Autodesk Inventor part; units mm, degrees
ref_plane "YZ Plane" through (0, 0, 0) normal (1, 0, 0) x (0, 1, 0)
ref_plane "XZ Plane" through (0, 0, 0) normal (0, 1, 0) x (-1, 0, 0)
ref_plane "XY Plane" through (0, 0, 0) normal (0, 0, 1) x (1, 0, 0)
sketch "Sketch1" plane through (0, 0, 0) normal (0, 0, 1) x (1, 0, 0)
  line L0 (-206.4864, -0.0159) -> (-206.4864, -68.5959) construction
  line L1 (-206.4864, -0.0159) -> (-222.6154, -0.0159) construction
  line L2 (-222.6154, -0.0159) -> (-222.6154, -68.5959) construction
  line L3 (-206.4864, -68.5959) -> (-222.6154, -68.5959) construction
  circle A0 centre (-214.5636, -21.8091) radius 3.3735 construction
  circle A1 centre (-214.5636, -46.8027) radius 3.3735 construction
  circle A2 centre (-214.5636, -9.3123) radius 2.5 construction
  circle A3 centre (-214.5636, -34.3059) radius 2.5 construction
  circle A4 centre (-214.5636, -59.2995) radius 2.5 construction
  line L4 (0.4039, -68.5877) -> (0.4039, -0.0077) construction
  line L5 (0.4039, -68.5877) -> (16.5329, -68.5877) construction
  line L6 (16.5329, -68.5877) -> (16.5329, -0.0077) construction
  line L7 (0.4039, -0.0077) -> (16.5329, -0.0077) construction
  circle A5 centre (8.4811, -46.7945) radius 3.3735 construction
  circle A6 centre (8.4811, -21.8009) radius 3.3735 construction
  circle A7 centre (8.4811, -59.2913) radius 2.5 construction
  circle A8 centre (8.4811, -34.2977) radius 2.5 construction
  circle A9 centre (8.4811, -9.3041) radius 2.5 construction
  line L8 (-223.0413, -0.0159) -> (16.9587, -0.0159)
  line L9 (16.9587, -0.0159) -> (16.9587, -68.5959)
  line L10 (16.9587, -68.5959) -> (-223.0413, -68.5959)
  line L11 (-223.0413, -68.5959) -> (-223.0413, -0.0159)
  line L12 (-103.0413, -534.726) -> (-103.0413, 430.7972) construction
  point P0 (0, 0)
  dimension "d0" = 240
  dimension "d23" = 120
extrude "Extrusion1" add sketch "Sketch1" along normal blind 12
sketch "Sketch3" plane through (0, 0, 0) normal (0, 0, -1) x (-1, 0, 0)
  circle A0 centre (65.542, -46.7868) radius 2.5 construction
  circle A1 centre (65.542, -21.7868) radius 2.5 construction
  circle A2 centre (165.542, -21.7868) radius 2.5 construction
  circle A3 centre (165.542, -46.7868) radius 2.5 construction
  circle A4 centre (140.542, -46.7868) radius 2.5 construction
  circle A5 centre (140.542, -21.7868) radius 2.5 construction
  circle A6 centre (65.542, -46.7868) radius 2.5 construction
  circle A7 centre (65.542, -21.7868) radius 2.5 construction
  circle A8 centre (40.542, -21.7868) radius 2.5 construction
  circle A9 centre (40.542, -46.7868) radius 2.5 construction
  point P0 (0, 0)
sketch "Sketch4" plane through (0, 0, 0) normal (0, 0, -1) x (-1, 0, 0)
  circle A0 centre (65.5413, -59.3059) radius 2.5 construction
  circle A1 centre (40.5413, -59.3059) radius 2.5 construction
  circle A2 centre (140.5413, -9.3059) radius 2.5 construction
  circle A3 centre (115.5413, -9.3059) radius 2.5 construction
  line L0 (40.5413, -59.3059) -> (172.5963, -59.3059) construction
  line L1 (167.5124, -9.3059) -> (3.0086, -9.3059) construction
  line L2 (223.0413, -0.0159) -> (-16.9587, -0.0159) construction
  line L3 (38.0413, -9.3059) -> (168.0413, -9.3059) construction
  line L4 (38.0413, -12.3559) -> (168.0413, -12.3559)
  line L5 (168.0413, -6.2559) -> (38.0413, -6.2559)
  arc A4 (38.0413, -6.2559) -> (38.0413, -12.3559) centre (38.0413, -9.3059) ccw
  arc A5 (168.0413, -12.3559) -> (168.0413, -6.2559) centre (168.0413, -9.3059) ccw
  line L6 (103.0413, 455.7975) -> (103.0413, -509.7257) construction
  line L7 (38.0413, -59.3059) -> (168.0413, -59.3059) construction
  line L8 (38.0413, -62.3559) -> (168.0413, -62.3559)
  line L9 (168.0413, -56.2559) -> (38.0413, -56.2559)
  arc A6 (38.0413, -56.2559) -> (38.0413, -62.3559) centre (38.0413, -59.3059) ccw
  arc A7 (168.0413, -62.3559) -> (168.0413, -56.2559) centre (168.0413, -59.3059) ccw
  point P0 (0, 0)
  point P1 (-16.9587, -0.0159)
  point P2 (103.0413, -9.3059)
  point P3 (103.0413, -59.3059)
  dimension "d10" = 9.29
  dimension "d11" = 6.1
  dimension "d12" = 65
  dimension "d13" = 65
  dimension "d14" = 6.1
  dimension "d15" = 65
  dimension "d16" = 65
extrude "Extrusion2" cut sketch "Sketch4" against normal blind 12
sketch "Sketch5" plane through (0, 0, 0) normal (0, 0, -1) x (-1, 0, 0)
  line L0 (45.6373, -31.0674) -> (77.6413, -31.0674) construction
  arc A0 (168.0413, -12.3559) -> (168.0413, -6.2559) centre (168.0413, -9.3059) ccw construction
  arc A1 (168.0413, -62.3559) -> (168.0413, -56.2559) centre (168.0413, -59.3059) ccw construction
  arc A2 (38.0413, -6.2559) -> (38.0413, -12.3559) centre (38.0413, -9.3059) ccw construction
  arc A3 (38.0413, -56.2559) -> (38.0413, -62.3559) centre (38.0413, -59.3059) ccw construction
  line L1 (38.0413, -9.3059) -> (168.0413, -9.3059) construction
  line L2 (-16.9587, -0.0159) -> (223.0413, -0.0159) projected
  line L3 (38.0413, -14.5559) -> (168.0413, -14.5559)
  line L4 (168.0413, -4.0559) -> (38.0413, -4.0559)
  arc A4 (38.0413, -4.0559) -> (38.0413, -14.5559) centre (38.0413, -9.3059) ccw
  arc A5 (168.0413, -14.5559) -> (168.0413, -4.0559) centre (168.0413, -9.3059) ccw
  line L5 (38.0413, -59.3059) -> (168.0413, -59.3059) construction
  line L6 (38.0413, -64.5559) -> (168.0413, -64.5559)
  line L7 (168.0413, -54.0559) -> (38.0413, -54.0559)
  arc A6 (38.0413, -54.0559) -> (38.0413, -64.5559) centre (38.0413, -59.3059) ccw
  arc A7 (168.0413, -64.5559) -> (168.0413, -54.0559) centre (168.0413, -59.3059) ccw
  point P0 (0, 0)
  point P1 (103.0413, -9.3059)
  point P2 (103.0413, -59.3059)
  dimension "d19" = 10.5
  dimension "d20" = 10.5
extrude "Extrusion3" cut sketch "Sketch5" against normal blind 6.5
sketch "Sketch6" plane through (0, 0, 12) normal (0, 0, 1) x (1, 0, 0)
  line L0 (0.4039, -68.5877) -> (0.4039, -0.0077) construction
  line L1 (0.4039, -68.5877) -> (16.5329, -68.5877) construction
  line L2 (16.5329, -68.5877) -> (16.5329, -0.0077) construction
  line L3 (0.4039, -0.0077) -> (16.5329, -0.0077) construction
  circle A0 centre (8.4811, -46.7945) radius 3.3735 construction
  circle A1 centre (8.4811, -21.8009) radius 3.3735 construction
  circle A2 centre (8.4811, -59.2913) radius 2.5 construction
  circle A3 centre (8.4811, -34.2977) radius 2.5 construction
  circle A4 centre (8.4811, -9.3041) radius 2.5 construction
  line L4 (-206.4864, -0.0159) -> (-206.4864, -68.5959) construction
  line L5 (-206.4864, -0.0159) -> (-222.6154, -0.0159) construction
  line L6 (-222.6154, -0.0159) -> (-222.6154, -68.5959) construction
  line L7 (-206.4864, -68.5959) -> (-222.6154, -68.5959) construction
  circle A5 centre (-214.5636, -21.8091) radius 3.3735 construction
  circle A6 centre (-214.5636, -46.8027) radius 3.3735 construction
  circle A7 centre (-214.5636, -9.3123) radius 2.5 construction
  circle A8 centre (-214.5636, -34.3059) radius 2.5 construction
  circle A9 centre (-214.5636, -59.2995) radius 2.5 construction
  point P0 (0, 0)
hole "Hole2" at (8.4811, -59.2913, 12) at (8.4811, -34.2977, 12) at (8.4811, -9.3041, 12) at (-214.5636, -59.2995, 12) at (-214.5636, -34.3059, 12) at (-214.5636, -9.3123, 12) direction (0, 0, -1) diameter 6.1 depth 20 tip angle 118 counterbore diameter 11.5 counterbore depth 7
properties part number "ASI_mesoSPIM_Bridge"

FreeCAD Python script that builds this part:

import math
import FreeCAD as App
import Part
import Sketcher
from FreeCAD import Vector
Q = App.Units.Quantity

doc = App.newDocument("Part")
body = doc.addObject("PartDesign::Body", "Body")

# Sketch on XY plane
sketch1 = body.newObject("Sketcher::SketchObject", "Sketch")
sketch1.AttachmentSupport = (doc.getObject("XY_Plane"), [""])
sketch1.MapMode = "FlatFace"
sketch1.addGeometry([
    Part.LineSegment(Vector(17, 0, 0), Vector(-223, 0, 0)),
    Part.LineSegment(Vector(-223, 0, 0), Vector(-223, -69, 0)),
    Part.LineSegment(Vector(-223, -69, 0), Vector(17, -69, 0)),
    Part.LineSegment(Vector(17, -69, 0), Vector(17, 0, 0)),
], False)
sketch1.addConstraint([
    Sketcher.Constraint("Coincident", 0, 2, 1, 1),
    Sketcher.Constraint("Coincident", 1, 2, 2, 1),
    Sketcher.Constraint("Coincident", 2, 2, 3, 1),
    Sketcher.Constraint("Coincident", 3, 2, 0, 1),
    Sketcher.Constraint("Horizontal", 0),
    Sketcher.Constraint("Vertical", 1),
    Sketcher.Constraint("Horizontal", 2),
    Sketcher.Constraint("Vertical", 3),
    Sketcher.Constraint("DistanceX", 0, 2, 0, 1, Q("240 mm")),
    Sketcher.Constraint("DistanceY", 1, 2, 1, 1, Q("68.58 mm")),
    Sketcher.Constraint("DistanceY", 0, 2, -1, 1, Q("0.016 mm")),
    Sketcher.Constraint("DistanceX", 0, 2, -1, 1, Q("223.0413 mm")),
])
pad1 = body.newObject("PartDesign::Pad", "Pad")
pad1.Profile = sketch1
pad1.Length = 12

# Sketch on XY plane
sketch2 = body.newObject("Sketcher::SketchObject", "Sketch001")
sketch2.AttachmentSupport = (doc.getObject("XY_Plane"), [""])
sketch2.MapMode = "FlatFace"
sketch2.addGeometry([
    Part.ArcOfCircle(Part.Circle(Vector(-38, -9.3, 0), Vector(0, 0, 1), 3), math.radians(-90), math.radians(90)),  # 0
    Part.LineSegment(Vector(-38, -12.4, 0), Vector(-168, -12.4, 0)),  # 1
    Part.ArcOfCircle(Part.Circle(Vector(-168, -9.3, 0), Vector(0, 0, 1), 3.1), math.radians(90), math.radians(270)),  # 2
    Part.LineSegment(Vector(-168, -6.3, 0), Vector(-38, -6.3, 0)),  # 3
    Part.ArcOfCircle(Part.Circle(Vector(-38, -59.3, 0), Vector(0, 0, 1), 3.1), math.radians(-90), math.radians(90)),  # 4
    Part.LineSegment(Vector(-38, -62.4, 0), Vector(-168, -62.4, 0)),  # 5
    Part.ArcOfCircle(Part.Circle(Vector(-168, -59.3, 0), Vector(0, 0, 1), 3), math.radians(90), math.radians(270)),  # 6
    Part.LineSegment(Vector(-168, -56.3, 0), Vector(-38, -56.3, 0)),  # 7
], False)
sketch2.addConstraint([
    Sketcher.Constraint("Tangent", 0, 1, 1, 1),
    Sketcher.Constraint("Tangent", 1, 2, 2, 2),
    Sketcher.Constraint("Tangent", 2, 1, 3, 1),
    Sketcher.Constraint("Tangent", 3, 2, 0, 2),
    Sketcher.Constraint("Tangent", 4, 1, 5, 1),
    Sketcher.Constraint("Tangent", 5, 2, 6, 2),
    Sketcher.Constraint("Tangent", 6, 1, 7, 1),
    Sketcher.Constraint("Tangent", 7, 2, 4, 2),
    Sketcher.Constraint("Horizontal", 1),
    Sketcher.Constraint("Horizontal", 3),
    Sketcher.Constraint("Horizontal", 5),
    Sketcher.Constraint("Horizontal", 7),
    Sketcher.Constraint("Equal", 2, 4),
    Sketcher.Constraint("Vertical", 0, 3, 4, 3),
    Sketcher.Constraint("Vertical", 2, 3, 6, 3),
    Sketcher.Constraint("Radius", 0, Q("3.05 mm")),
    Sketcher.Constraint("DistanceX", 1, 2, 1, 1, Q("130 mm")),
    Sketcher.Constraint("DistanceY", 4, 3, 0, 3, Q("50 mm")),
    Sketcher.Constraint("DistanceY", 0, 3, -1, 1, Q("9.306 mm")),
    Sketcher.Constraint("DistanceX", 0, 3, -1, 1, Q("38.0413 mm")),
])
pocket1 = body.newObject("PartDesign::Pocket", "Pocket")
pocket1.Profile = sketch2
pocket1.Length = 12
pocket1.Reversed = True

# Sketch on XY plane
sketch3 = body.newObject("Sketcher::SketchObject", "Sketch002")
sketch3.AttachmentSupport = (doc.getObject("XY_Plane"), [""])
sketch3.MapMode = "FlatFace"
sketch3.addGeometry([
    Part.ArcOfCircle(Part.Circle(Vector(-38, -9, 0), Vector(0, 0, 1), 5), math.radians(-90), math.radians(90)),  # 0
    Part.LineSegment(Vector(-38, -15, 0), Vector(-168, -15, 0)),  # 1
    Part.ArcOfCircle(Part.Circle(Vector(-168, -9, 0), Vector(0, 0, 1), 5), math.radians(90), math.radians(270)),  # 2
    Part.LineSegment(Vector(-168, -4, 0), Vector(-38, -4, 0)),  # 3
    Part.ArcOfCircle(Part.Circle(Vector(-38, -59, 0), Vector(0, 0, 1), 5), math.radians(-90), math.radians(90)),  # 4
    Part.LineSegment(Vector(-38, -65, 0), Vector(-168, -65, 0)),  # 5
    Part.ArcOfCircle(Part.Circle(Vector(-168, -59, 0), Vector(0, 0, 1), 5), math.radians(90), math.radians(270)),  # 6
    Part.LineSegment(Vector(-168, -54, 0), Vector(-38, -54, 0)),  # 7
], False)
sketch3.addConstraint([
    Sketcher.Constraint("Tangent", 0, 1, 1, 1),
    Sketcher.Constraint("Tangent", 1, 2, 2, 2),
    Sketcher.Constraint("Tangent", 2, 1, 3, 1),
    Sketcher.Constraint("Tangent", 3, 2, 0, 2),
    Sketcher.Constraint("Tangent", 4, 1, 5, 1),
    Sketcher.Constraint("Tangent", 5, 2, 6, 2),
    Sketcher.Constraint("Tangent", 6, 1, 7, 1),
    Sketcher.Constraint("Tangent", 7, 2, 4, 2),
    Sketcher.Constraint("Horizontal", 1),
    Sketcher.Constraint("Horizontal", 3),
    Sketcher.Constraint("Horizontal", 5),
    Sketcher.Constraint("Horizontal", 7),
    Sketcher.Constraint("Equal", 2, 4),
    Sketcher.Constraint("Vertical", 0, 3, 4, 3),
    Sketcher.Constraint("Vertical", 2, 3, 6, 3),
    Sketcher.Constraint("Radius", 0, Q("5.25 mm")),
    Sketcher.Constraint("DistanceX", 1, 2, 1, 1, Q("130 mm")),
    Sketcher.Constraint("DistanceY", 4, 3, 0, 3, Q("50 mm")),
    Sketcher.Constraint("DistanceY", 0, 3, -1, 1, Q("9.306 mm")),
    Sketcher.Constraint("DistanceX", 0, 3, -1, 1, Q("38.0413 mm")),
])
pocket2 = body.newObject("PartDesign::Pocket", "Pocket001")
pocket2.Profile = sketch3
pocket2.Length = 6.5
pocket2.Reversed = True

# Sketch on XY plane
sketch4 = body.newObject("Sketcher::SketchObject", "Sketch003")
sketch4.AttachmentSupport = (doc.getObject("XY_Plane"), [""])
sketch4.MapMode = "FlatFace"
sketch4.AttachmentOffset = App.Placement(Vector(0, 0, 12), App.Rotation())
sketch4.addGeometry([
    Part.Circle(Vector(8.5, -59.3, 0), Vector(0, 0, 1), 3),  # 0
    Part.Circle(Vector(8.5, -34.3, 0), Vector(0, 0, 1), 3),  # 1
    Part.Circle(Vector(8.5, -9.3, 0), Vector(0, 0, 1), 3),  # 2
    Part.Circle(Vector(-214.6, -59.3, 0), Vector(0, 0, 1), 3),  # 3
    Part.Circle(Vector(-214.6, -34.3, 0), Vector(0, 0, 1), 3),  # 4
    Part.Circle(Vector(-214.6, -9.3, 0), Vector(0, 0, 1), 3),  # 5
], False)
sketch4.addConstraint([
    Sketcher.Constraint("Equal", 0, 1),
    Sketcher.Constraint("Equal", 1, 2),
    Sketcher.Constraint("Equal", 2, 3),
    Sketcher.Constraint("Equal", 3, 4),
    Sketcher.Constraint("Equal", 4, 5),
    Sketcher.Constraint("Vertical", 0, 3, 1, 3),
    Sketcher.Constraint("Vertical", 1, 3, 2, 3),
    Sketcher.Constraint("Vertical", 3, 3, 4, 3),
    Sketcher.Constraint("Vertical", 4, 3, 5, 3),
    Sketcher.Constraint("Diameter", 0, Q("6.1 mm")),
    Sketcher.Constraint("DistanceX", -1, 1, 0, 3, Q("8.481 mm")),
    Sketcher.Constraint("DistanceY", 2, 3, -1, 1, Q("9.304 mm")),
    Sketcher.Constraint("DistanceY", 4, 3, -1, 1, Q("34.306 mm")),
    Sketcher.Constraint("DistanceY", 0, 3, 5, 3, Q("49.979 mm")),
    Sketcher.Constraint("DistanceY", 0, 3, -1, 1, Q("59.2913 mm")),
    Sketcher.Constraint("DistanceY", 1, 3, -1, 1, Q("34.2977 mm")),
    Sketcher.Constraint("DistanceX", 3, 3, -1, 1, Q("214.5636 mm")),
    Sketcher.Constraint("DistanceY", 3, 3, -1, 1, Q("59.2995 mm")),
])
doc.recompute()
hole = body.newObject("PartDesign::Hole", "Hole")
hole.Profile = sketch4
hole.ThreadType = "None"
hole.Diameter = 6.1
hole.DepthType = "Dimension"
hole.Depth = 20
hole.DrillPoint = "Angled"
hole.DrillPointAngle = 118
hole.HoleCutType = "Counterbore"
hole.HoleCutDiameter = 11.5
hole.HoleCutDepth = 7

doc.recompute()
